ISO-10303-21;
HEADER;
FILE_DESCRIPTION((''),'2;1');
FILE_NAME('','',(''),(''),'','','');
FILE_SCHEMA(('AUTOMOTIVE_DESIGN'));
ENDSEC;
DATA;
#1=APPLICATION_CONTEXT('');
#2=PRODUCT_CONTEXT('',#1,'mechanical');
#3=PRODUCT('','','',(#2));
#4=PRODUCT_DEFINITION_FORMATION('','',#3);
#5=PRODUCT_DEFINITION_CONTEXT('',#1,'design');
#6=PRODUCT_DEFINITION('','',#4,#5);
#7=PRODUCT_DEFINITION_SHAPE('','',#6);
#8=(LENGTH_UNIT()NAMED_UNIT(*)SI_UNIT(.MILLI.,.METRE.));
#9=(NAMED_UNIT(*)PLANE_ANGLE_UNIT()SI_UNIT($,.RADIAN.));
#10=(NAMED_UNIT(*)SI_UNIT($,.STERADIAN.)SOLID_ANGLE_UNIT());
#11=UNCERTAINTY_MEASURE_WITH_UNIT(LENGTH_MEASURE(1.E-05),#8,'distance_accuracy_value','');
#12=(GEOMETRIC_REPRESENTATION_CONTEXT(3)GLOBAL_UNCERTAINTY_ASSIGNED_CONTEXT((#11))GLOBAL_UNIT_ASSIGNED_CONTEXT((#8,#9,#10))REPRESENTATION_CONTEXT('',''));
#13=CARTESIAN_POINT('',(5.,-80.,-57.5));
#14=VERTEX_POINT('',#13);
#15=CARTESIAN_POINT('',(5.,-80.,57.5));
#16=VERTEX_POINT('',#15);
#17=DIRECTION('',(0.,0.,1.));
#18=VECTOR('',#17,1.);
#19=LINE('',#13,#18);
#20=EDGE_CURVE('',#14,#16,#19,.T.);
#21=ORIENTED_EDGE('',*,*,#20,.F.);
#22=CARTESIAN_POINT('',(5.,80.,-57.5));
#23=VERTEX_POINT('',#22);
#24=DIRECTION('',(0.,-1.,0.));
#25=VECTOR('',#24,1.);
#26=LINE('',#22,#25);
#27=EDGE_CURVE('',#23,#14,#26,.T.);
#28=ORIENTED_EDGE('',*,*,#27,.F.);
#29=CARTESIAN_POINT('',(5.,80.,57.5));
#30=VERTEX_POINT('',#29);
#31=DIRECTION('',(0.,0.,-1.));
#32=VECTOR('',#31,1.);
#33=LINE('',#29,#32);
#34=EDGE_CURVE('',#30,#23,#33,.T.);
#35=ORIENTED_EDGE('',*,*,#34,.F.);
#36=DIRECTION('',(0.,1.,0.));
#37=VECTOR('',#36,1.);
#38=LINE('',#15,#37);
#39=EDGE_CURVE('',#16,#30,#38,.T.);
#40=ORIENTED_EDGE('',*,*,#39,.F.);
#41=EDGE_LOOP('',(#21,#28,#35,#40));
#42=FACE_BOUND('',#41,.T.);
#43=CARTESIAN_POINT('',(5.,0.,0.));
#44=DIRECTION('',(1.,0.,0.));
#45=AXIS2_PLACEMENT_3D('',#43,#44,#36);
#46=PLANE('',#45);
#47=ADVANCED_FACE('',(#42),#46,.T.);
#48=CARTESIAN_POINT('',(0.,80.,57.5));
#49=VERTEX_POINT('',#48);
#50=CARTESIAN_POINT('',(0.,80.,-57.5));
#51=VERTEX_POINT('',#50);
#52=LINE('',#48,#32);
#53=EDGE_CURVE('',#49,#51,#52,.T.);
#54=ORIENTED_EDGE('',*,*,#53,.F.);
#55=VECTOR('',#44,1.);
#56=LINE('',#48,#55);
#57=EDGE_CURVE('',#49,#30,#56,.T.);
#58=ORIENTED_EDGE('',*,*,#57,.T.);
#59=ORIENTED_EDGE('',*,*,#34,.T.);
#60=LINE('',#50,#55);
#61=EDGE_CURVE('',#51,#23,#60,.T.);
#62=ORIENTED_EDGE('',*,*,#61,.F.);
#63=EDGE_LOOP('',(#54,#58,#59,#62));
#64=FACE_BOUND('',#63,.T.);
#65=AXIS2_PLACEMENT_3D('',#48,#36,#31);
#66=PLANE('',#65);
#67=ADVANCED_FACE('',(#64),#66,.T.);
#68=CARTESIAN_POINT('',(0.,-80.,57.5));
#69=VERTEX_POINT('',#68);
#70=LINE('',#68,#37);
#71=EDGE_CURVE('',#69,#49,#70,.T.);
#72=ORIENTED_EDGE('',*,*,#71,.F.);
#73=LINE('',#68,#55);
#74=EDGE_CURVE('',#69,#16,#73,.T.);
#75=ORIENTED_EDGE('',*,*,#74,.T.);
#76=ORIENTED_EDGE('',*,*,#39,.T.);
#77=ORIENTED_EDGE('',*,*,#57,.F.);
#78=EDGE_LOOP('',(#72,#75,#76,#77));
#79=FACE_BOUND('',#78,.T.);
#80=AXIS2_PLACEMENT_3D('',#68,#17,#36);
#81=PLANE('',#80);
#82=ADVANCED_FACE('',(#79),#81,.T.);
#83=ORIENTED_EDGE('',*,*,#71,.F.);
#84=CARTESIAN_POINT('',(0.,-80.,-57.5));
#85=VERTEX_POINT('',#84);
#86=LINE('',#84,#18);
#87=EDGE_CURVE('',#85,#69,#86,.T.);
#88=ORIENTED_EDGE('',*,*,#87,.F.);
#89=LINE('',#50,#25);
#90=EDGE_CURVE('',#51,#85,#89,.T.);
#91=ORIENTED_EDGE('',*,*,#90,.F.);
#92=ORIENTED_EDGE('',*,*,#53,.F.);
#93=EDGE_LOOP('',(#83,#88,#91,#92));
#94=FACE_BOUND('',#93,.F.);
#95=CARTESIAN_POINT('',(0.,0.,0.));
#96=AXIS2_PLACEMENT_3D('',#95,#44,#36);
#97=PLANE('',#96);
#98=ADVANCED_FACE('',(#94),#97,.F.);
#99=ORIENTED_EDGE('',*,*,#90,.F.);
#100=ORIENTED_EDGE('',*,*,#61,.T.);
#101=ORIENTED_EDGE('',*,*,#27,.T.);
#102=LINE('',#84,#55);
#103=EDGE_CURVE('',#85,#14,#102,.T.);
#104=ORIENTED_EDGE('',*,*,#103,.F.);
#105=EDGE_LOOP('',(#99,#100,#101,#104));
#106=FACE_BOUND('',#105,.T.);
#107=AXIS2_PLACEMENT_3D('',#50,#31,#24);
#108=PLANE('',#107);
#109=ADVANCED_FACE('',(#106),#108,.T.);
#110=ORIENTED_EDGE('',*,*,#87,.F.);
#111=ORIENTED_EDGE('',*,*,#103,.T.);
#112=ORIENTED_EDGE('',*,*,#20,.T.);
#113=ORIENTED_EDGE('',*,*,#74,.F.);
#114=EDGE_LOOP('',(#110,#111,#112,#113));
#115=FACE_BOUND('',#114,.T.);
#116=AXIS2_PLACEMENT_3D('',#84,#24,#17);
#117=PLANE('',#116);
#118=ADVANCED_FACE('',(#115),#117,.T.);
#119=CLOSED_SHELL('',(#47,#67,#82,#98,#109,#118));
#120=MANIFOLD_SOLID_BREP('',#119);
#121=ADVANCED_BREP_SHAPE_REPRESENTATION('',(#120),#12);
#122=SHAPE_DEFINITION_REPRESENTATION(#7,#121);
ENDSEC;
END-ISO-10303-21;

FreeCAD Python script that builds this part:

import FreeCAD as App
import Part
import Sketcher
Q = App.Units.Quantity


def add_polygon(sketch, points):
    """Adds a closed chain of lines whose ends are joined by coincident constraints."""
    first, n = sketch.GeometryCount, len(points)
    for a, b in zip(points, points[1:] + points[:1]):
        sketch.addGeometry(Part.LineSegment(App.Vector(*a, 0), App.Vector(*b, 0)), False)
    for i in range(n):
        sketch.addConstraint(Sketcher.Constraint("Coincident", first + i, 2, first + (i + 1) % n, 1))

doc = App.newDocument("Part")
body = doc.addObject("PartDesign::Body", "Body")

# Sketch on YZ plane
sketch1 = body.newObject("Sketcher::SketchObject", "Sketch")
sketch1.AttachmentSupport = (doc.getObject("YZ_Plane"), [""])
sketch1.MapMode = "FlatFace"
add_polygon(sketch1, [(80, 58), (-80, 58), (-80, -58), (80, -58)])  # lines 0-3
sketch1.addConstraint(Sketcher.Constraint("Horizontal", 0))
sketch1.addConstraint(Sketcher.Constraint("Vertical", 1))
sketch1.addConstraint(Sketcher.Constraint("Horizontal", 2))
sketch1.addConstraint(Sketcher.Constraint("Vertical", 3))
sketch1.addConstraint(Sketcher.Constraint("Symmetric", 0, 2, 2, 2, -1, 1))
sketch1.addConstraint(Sketcher.Constraint("DistanceX", 0, 2, 0, 1, Q("160 mm")))
sketch1.addConstraint(Sketcher.Constraint("DistanceY", 1, 2, 1, 1, Q("115 mm")))
pad1 = body.newObject("PartDesign::Pad", "Pad")
pad1.Profile = sketch1
pad1.Length = 5

doc.recompute()
